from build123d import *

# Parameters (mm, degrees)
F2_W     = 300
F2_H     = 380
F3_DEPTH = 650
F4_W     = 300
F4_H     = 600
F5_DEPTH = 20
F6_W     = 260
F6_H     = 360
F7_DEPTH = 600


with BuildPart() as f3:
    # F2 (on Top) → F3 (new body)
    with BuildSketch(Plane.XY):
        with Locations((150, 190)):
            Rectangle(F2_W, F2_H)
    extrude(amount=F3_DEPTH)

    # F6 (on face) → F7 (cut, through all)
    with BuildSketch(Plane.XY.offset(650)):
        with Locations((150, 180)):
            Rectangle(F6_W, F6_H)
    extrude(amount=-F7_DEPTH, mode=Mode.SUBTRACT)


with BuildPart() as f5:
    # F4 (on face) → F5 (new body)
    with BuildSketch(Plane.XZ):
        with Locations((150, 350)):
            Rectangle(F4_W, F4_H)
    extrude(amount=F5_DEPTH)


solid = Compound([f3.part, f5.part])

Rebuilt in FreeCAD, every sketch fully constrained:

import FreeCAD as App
import Part
import Sketcher

doc = App.newDocument("Part")
body = doc.addObject("PartDesign::Body", "Body")

sketch1 = body.newObject("Sketcher::SketchObject", "Sketch")
sketch1.AttachmentSupport = (doc.getObject("XY_Plane"), [""])
sketch1.MapMode = "FlatFace"
sketch1.addGeometry([
    Part.LineSegment(App.Vector(0, 380, 0), App.Vector(0, 0, 0)),
    Part.LineSegment(App.Vector(0, 0, 0), App.Vector(300, 0, 0)),
    Part.LineSegment(App.Vector(300, 0, 0), App.Vector(300, 380, 0)),
    Part.LineSegment(App.Vector(300, 380, 0), App.Vector(0, 380, 0)),
], False)
sketch1.addConstraint([
    Sketcher.Constraint("Coincident", 0, 2, 1, 1),
    Sketcher.Constraint("Coincident", 1, 2, 2, 1),
    Sketcher.Constraint("Coincident", 2, 2, 3, 1),
    Sketcher.Constraint("Coincident", 3, 2, 0, 1),
    Sketcher.Constraint("Vertical", 0),
    Sketcher.Constraint("Horizontal", 1),
    Sketcher.Constraint("Vertical", 2),
    Sketcher.Constraint("Horizontal", 3),
    Sketcher.Constraint("Coincident", 0, 2, -1, 1),
    Sketcher.Constraint("DistanceX", 1, 1, 1, 2, 300.0),
    Sketcher.Constraint("DistanceY", 0, 2, 0, 1, 380.0),
])
pad1 = body.newObject("PartDesign::Pad", "Pad")
pad1.Profile = sketch1
pad1.Length = 650

sketch2 = body.newObject("Sketcher::SketchObject", "Sketch001")
sketch2.AttachmentSupport = (doc.getObject("XY_Plane"), [""])
sketch2.MapMode = "FlatFace"
sketch2.AttachmentOffset = App.Placement(App.Vector(0, 0, 650), App.Rotation())
sketch2.addGeometry([
    Part.LineSegment(App.Vector(20, 360, 0), App.Vector(20, 0, 0)),
    Part.LineSegment(App.Vector(20, 0, 0), App.Vector(280, 0, 0)),
    Part.LineSegment(App.Vector(280, 0, 0), App.Vector(280, 360, 0)),
    Part.LineSegment(App.Vector(280, 360, 0), App.Vector(20, 360, 0)),
], False)
sketch2.addConstraint([
    Sketcher.Constraint("Coincident", 0, 2, 1, 1),
    Sketcher.Constraint("Coincident", 1, 2, 2, 1),
    Sketcher.Constraint("Coincident", 2, 2, 3, 1),
    Sketcher.Constraint("Coincident", 3, 2, 0, 1),
    Sketcher.Constraint("Vertical", 0),
    Sketcher.Constraint("Horizontal", 1),
    Sketcher.Constraint("Vertical", 2),
    Sketcher.Constraint("Horizontal", 3),
    Sketcher.Constraint("PointOnObject", 0, 2, -1),
    Sketcher.Constraint("DistanceX", 1, 1, 1, 2, 260.0),
    Sketcher.Constraint("DistanceY", 0, 2, 0, 1, 360.0),
    Sketcher.Constraint("DistanceX", -1, 1, 0, 2, 20.0),
])
pocket1 = body.newObject("PartDesign::Pocket", "Pocket")
pocket1.Profile = sketch2
pocket1.Length = 600
body2 = doc.addObject("PartDesign::Body", "Body001")

sketch3 = body2.newObject("Sketcher::SketchObject", "Sketch002")
sketch3.AttachmentSupport = (doc.getObject("XZ_Plane001"), [""])
sketch3.MapMode = "FlatFace"
sketch3.addGeometry([
    Part.LineSegment(App.Vector(0, 650, 0), App.Vector(0, 50, 0)),
    Part.LineSegment(App.Vector(0, 50, 0), App.Vector(300, 50, 0)),
    Part.LineSegment(App.Vector(300, 50, 0), App.Vector(300, 650, 0)),
    Part.LineSegment(App.Vector(300, 650, 0), App.Vector(0, 650, 0)),
], False)
sketch3.addConstraint([
    Sketcher.Constraint("Coincident", 0, 2, 1, 1),
    Sketcher.Constraint("Coincident", 1, 2, 2, 1),
    Sketcher.Constraint("Coincident", 2, 2, 3, 1),
    Sketcher.Constraint("Coincident", 3, 2, 0, 1),
    Sketcher.Constraint("Vertical", 0),
    Sketcher.Constraint("Horizontal", 1),
    Sketcher.Constraint("Vertical", 2),
    Sketcher.Constraint("Horizontal", 3),
    Sketcher.Constraint("PointOnObject", 0, 2, -2),
    Sketcher.Constraint("DistanceX", 1, 1, 1, 2, 300.0),
    Sketcher.Constraint("DistanceY", 0, 2, 0, 1, 600.0),
    Sketcher.Constraint("DistanceY", -1, 1, 0, 2, 50.0),
])
pad2 = body2.newObject("PartDesign::Pad", "Pad001")
pad2.Profile = sketch3
pad2.Length = 20

doc.recompute()
